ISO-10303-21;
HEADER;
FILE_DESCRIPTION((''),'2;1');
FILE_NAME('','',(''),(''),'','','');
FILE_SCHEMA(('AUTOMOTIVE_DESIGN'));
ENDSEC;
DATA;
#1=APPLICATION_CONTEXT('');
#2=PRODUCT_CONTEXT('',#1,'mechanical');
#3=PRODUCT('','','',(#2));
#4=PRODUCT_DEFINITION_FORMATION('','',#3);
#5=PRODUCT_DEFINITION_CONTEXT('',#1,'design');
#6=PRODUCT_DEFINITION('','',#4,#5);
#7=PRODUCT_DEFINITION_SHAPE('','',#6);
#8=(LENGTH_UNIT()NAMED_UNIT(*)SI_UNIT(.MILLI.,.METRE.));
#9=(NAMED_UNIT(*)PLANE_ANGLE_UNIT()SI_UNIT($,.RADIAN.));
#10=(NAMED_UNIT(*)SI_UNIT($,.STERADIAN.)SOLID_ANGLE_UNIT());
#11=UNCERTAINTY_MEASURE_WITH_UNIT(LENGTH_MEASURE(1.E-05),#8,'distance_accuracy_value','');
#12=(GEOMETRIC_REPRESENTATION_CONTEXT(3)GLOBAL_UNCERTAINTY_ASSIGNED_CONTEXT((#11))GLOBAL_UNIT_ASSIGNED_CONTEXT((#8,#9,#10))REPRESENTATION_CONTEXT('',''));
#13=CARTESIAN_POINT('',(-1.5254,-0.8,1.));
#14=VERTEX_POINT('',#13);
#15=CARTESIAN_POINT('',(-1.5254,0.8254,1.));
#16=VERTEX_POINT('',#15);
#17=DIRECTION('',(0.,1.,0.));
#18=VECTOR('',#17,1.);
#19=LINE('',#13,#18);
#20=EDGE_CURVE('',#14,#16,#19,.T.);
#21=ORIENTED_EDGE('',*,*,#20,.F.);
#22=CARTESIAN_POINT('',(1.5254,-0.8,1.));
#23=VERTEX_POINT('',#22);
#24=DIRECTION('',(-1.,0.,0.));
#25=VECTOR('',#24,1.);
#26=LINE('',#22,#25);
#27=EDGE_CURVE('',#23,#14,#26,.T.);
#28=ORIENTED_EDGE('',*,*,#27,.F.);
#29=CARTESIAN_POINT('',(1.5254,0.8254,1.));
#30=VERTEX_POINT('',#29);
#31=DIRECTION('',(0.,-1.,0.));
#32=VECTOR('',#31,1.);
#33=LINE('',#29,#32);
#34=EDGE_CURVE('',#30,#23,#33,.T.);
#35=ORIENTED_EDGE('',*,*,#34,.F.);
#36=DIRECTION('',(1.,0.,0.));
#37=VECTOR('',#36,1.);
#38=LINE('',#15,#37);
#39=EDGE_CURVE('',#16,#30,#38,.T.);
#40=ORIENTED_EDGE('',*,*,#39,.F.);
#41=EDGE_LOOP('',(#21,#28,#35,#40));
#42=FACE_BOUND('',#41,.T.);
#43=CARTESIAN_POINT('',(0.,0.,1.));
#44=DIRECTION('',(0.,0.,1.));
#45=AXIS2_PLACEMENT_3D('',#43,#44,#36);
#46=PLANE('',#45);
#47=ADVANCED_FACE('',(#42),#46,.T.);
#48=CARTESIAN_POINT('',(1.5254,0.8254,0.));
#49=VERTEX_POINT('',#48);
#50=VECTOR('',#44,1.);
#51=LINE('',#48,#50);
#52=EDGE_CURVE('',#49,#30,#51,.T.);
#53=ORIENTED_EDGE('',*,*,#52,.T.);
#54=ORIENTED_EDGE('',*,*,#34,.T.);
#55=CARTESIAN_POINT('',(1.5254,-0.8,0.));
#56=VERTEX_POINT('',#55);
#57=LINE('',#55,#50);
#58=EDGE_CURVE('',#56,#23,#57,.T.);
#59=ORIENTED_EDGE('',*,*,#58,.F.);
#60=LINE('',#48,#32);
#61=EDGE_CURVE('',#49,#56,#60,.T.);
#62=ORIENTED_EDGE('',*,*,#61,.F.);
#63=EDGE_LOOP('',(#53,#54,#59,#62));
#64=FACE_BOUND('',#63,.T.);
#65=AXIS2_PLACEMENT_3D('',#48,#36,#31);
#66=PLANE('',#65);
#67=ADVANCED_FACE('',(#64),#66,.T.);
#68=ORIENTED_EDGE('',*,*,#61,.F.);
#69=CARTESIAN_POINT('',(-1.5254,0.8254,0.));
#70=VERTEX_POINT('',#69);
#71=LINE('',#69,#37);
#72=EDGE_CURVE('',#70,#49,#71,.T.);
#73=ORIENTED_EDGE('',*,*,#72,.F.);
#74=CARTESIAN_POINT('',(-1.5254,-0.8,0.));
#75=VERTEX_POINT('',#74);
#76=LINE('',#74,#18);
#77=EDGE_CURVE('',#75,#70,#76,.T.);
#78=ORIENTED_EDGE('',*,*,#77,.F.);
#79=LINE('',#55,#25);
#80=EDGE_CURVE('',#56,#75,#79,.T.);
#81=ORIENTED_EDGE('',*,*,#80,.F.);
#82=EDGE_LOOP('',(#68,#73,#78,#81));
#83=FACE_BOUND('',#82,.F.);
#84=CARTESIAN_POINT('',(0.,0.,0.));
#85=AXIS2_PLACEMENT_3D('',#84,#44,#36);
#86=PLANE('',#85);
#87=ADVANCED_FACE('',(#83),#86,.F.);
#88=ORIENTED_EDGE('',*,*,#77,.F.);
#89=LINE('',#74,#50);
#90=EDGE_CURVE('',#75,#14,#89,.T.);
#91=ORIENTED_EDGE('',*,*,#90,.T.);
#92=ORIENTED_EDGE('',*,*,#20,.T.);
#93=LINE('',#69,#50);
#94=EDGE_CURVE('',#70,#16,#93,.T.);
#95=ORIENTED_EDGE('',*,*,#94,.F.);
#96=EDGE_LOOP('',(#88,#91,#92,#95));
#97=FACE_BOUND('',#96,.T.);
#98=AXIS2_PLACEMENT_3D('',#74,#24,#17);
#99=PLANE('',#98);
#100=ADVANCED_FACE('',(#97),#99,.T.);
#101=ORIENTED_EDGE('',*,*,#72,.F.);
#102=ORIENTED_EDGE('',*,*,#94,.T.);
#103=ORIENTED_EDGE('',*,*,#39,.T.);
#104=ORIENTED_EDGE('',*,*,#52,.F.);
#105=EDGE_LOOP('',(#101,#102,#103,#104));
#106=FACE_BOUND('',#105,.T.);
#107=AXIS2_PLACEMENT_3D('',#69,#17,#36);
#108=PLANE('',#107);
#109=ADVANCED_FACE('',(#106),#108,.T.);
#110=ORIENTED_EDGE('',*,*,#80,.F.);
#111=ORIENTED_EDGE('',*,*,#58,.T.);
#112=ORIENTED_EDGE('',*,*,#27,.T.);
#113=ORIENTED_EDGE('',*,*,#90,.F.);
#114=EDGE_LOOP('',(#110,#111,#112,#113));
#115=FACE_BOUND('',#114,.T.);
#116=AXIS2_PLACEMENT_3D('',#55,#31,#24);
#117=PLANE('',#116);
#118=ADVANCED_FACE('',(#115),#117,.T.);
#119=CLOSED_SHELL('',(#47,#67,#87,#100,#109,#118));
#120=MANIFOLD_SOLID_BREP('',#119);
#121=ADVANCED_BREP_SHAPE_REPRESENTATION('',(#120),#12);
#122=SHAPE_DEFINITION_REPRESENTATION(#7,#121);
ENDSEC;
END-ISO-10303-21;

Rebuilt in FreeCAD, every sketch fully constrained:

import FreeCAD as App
import Part
import Sketcher
from FreeCAD import Vector

doc = App.newDocument("Part")
body = doc.addObject("PartDesign::Body", "Body")

# Sketch on XY plane
sketch1 = body.newObject("Sketcher::SketchObject", "Sketch")
sketch1.AttachmentSupport = (doc.getObject("XY_Plane"), [""])
sketch1.MapMode = "FlatFace"
sketch1.addGeometry(Part.LineSegment(Vector(1.5254, 0.8254, 0), Vector(-1.5254, 0.8254, 0)), False)
sketch1.addGeometry(Part.LineSegment(Vector(-1.5254, 0.8254, 0), Vector(-1.5254, -0.8, 0)), False)
sketch1.addGeometry(Part.LineSegment(Vector(-1.5254, -0.8, 0), Vector(1.5254, -0.8, 0)), False)
sketch1.addGeometry(Part.LineSegment(Vector(1.5254, -0.8, 0), Vector(1.5254, 0.8254, 0)), False)
sketch1.addConstraint(Sketcher.Constraint("Coincident", 0, 2, 1, 1))
sketch1.addConstraint(Sketcher.Constraint("Coincident", 1, 2, 2, 1))
sketch1.addConstraint(Sketcher.Constraint("Coincident", 2, 2, 3, 1))
sketch1.addConstraint(Sketcher.Constraint("Coincident", 3, 2, 0, 1))
sketch1.addConstraint(Sketcher.Constraint("Horizontal", 0))
sketch1.addConstraint(Sketcher.Constraint("Vertical", 1))
sketch1.addConstraint(Sketcher.Constraint("Horizontal", 2))
sketch1.addConstraint(Sketcher.Constraint("Vertical", 3))
sketch1.addConstraint(Sketcher.Constraint("DistanceY", 1, 2, -1, 1, 0.8))
sketch1.addConstraint(Sketcher.Constraint("DistanceX", 0, 2, 0, 1, 3.0508))
sketch1.addConstraint(Sketcher.Constraint("DistanceY", 1, 2, 1, 1, 1.6254))
sketch1.addConstraint(Sketcher.Constraint("DistanceX", 0, 2, -1, 1, 1.5254))
pad1 = body.newObject("PartDesign::Pad", "Pad")
pad1.Profile = sketch1
pad1.Length = 1

doc.recompute()
